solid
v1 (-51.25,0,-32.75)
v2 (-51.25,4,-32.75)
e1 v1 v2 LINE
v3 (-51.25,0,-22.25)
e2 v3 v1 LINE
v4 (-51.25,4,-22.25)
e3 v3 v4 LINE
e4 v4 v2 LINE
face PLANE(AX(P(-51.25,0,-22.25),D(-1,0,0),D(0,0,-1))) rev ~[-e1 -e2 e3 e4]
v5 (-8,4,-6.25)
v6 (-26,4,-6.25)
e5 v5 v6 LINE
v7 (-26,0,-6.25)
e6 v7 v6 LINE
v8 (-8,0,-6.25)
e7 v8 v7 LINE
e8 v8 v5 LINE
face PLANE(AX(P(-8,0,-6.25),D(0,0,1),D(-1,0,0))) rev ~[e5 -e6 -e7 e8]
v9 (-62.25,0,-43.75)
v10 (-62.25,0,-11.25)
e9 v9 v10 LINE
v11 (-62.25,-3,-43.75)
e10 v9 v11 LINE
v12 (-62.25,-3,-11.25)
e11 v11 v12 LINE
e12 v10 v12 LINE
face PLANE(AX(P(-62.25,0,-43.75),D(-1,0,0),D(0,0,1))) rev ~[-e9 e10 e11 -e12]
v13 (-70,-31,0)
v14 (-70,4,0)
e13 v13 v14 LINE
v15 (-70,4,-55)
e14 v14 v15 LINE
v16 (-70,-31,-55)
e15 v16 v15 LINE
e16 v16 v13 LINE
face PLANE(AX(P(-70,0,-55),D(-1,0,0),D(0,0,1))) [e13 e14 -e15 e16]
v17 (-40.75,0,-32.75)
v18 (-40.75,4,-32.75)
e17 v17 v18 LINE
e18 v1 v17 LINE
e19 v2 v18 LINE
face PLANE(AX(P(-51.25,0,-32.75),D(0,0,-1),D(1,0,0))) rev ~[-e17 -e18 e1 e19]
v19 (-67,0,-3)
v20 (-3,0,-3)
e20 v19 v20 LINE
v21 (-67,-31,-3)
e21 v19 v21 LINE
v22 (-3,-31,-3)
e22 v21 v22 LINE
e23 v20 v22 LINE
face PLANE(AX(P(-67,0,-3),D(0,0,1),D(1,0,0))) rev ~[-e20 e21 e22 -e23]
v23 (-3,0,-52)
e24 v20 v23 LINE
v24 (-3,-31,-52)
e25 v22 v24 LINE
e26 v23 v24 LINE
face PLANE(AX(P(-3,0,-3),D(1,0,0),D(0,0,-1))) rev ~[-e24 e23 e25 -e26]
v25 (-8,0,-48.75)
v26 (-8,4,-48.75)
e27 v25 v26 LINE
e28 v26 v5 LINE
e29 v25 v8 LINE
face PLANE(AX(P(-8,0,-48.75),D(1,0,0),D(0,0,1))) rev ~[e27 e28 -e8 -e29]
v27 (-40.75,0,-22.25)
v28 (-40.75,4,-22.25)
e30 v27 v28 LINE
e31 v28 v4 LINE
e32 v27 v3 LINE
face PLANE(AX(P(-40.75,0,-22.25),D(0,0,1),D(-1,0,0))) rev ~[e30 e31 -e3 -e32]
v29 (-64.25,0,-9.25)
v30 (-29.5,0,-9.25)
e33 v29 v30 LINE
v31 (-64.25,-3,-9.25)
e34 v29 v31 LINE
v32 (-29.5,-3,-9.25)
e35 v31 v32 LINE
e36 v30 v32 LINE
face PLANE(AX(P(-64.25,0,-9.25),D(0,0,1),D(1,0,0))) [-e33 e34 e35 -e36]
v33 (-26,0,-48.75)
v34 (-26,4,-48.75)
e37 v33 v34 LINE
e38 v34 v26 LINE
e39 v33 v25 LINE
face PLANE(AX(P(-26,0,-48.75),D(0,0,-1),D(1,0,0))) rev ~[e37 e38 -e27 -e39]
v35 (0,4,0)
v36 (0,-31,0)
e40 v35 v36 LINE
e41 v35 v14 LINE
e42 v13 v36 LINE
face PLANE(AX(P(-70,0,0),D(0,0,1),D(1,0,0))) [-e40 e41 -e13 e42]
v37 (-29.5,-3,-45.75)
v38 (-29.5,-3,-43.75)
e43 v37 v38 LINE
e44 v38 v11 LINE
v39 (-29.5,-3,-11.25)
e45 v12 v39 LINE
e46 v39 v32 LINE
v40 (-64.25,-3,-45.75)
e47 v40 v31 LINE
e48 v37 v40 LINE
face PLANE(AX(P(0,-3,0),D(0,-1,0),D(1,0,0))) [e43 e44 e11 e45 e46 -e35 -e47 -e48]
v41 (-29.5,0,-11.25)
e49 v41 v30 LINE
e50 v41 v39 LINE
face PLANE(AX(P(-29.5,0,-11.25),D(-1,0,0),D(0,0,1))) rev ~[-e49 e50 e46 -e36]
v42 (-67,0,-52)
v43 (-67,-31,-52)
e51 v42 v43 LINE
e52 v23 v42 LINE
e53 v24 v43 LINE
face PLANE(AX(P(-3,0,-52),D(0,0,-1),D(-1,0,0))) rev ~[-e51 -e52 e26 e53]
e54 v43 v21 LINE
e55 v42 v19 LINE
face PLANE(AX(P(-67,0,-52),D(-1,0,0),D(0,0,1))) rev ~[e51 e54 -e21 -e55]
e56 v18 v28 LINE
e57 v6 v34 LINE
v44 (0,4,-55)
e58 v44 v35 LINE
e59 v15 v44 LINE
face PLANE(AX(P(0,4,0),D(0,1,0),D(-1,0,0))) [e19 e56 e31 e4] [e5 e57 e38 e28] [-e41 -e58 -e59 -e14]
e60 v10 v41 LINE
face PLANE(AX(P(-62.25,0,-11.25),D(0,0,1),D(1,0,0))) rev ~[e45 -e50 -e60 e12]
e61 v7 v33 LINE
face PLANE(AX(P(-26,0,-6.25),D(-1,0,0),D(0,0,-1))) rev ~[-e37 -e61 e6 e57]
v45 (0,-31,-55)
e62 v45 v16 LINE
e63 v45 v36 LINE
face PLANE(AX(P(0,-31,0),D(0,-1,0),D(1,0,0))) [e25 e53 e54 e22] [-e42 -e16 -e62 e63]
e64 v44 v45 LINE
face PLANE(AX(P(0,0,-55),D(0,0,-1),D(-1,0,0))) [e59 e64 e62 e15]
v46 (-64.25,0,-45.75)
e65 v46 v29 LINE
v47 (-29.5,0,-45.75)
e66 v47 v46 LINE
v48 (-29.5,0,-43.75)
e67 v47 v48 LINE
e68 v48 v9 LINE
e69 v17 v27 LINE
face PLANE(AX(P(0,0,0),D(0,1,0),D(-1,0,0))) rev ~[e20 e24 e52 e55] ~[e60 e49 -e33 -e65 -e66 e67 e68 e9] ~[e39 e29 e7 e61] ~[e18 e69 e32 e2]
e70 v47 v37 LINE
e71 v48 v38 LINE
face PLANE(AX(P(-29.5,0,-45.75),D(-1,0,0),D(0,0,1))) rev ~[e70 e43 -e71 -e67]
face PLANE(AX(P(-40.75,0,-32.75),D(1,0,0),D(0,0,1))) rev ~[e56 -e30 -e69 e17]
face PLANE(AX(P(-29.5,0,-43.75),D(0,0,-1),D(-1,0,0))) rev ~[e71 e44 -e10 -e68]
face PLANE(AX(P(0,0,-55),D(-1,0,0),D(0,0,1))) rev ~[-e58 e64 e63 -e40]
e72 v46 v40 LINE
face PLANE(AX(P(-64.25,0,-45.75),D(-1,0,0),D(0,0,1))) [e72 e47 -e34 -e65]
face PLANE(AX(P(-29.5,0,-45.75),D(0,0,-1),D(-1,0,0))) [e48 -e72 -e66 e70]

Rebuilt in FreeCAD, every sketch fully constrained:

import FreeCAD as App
import Part
import Sketcher

doc = App.newDocument("Part")
params = doc.addObject("Spreadsheet::Sheet", "Params")
for row, (alias, value) in enumerate([
    ("sketch1_width", "70 mm"),
    ("sketch1_width2", "18 mm"),
    ("sketch1_height", "55 mm"),
    ("sketch1_width3", "10.5 mm"),
    ("sketch1_height2", "42.5 mm"),
    ("pad1_length", "4 mm"),
    ("sketch2_height", "2 mm"),
    ("sketch2_width", "32.75 mm"),
    ("sketch2_height2", "32.5 mm"),
    ("pad2_length", "3 mm"),
    ("sketch3_width", "70 mm"),
    ("sketch3_height", "55 mm"),
    ("pad3_length", "31 mm"),
], start=1):
    params.set(f"A{row}", alias)
    params.set(f"B{row}", "=" + value)
    params.setAlias(f"B{row}", alias)

body = doc.addObject("PartDesign::Body", "Body")

sketch1 = body.newObject("Sketcher::SketchObject", "Sketch")
sketch1.AttachmentSupport = (doc.getObject("XZ_Plane"), [""])
sketch1.MapMode = "FlatFace"
sketch1.addGeometry([
    Part.LineSegment(App.Vector(-70, 0, 0), App.Vector(0, 0, 0)),
    Part.LineSegment(App.Vector(0, 0, 0), App.Vector(0, -55, 0)),
    Part.LineSegment(App.Vector(0, -55, 0), App.Vector(-70, -55, 0)),
    Part.LineSegment(App.Vector(-70, -55, 0), App.Vector(-70, 0, 0)),
    Part.LineSegment(App.Vector(-26, -6.25, 0), App.Vector(-26, -48.75, 0)),
    Part.LineSegment(App.Vector(-26, -48.75, 0), App.Vector(-8, -48.75, 0)),
    Part.LineSegment(App.Vector(-8, -48.75, 0), App.Vector(-8, -6.25, 0)),
    Part.LineSegment(App.Vector(-8, -6.25, 0), App.Vector(-26, -6.25, 0)),
    Part.LineSegment(App.Vector(-51.25, -22.25, 0), App.Vector(-51.25, -32.75, 0)),
    Part.LineSegment(App.Vector(-51.25, -32.75, 0), App.Vector(-40.75, -32.75, 0)),
    Part.LineSegment(App.Vector(-40.75, -32.75, 0), App.Vector(-40.75, -22.25, 0)),
    Part.LineSegment(App.Vector(-40.75, -22.25, 0), App.Vector(-51.25, -22.25, 0)),
], False)
sketch1.addConstraint([
    Sketcher.Constraint("Coincident", 0, 2, 1, 1),
    Sketcher.Constraint("Coincident", 1, 2, 2, 1),
    Sketcher.Constraint("Coincident", 2, 2, 3, 1),
    Sketcher.Constraint("Coincident", 3, 2, 0, 1),
    Sketcher.Constraint("Coincident", 4, 2, 5, 1),
    Sketcher.Constraint("Coincident", 5, 2, 6, 1),
    Sketcher.Constraint("Coincident", 6, 2, 7, 1),
    Sketcher.Constraint("Coincident", 7, 2, 4, 1),
    Sketcher.Constraint("Coincident", 8, 2, 9, 1),
    Sketcher.Constraint("Coincident", 9, 2, 10, 1),
    Sketcher.Constraint("Coincident", 10, 2, 11, 1),
    Sketcher.Constraint("Coincident", 11, 2, 8, 1),
    Sketcher.Constraint("Horizontal", 0),
    Sketcher.Constraint("Vertical", 1),
    Sketcher.Constraint("Horizontal", 2),
    Sketcher.Constraint("Vertical", 3),
    Sketcher.Constraint("Vertical", 4),
    Sketcher.Constraint("Horizontal", 5),
    Sketcher.Constraint("Vertical", 6),
    Sketcher.Constraint("Horizontal", 7),
    Sketcher.Constraint("Vertical", 8),
    Sketcher.Constraint("Horizontal", 9),
    Sketcher.Constraint("Vertical", 10),
    Sketcher.Constraint("Horizontal", 11),
    Sketcher.Constraint("Coincident", 0, 2, -1, 1),
    Sketcher.Constraint("Equal", 11, 8),
    Sketcher.Constraint("DistanceX", 0, 1, 0, 2, 70.0),
    Sketcher.Constraint("DistanceX", 5, 1, 5, 2, 18.0),
    Sketcher.Constraint("DistanceY", 1, 2, 1, 1, 55.0),
    Sketcher.Constraint("DistanceX", 9, 1, 9, 2, 10.5),
    Sketcher.Constraint("DistanceY", 4, 2, 4, 1, 42.5),
    Sketcher.Constraint("DistanceX", 5, 2, -1, 1, 8.0),
    Sketcher.Constraint("DistanceY", 6, 2, -1, 1, 6.25),
    Sketcher.Constraint("DistanceY", 10, 2, -1, 1, 22.25),
    Sketcher.Constraint("DistanceX", 2, 2, 8, 2, 18.75),
])
sketch1.setExpression("Constraints[26]", "Params.sketch1_width")
sketch1.setExpression("Constraints[27]", "Params.sketch1_width2")
sketch1.setExpression("Constraints[28]", "Params.sketch1_height")
sketch1.setExpression("Constraints[29]", "Params.sketch1_width3")
sketch1.setExpression("Constraints[30]", "Params.sketch1_height2")
pad1 = body.newObject("PartDesign::Pad", "Pad")
pad1.Profile = sketch1
pad1.setExpression("Length", "Params.pad1_length")
pad1.Reversed = True

sketch2 = body.newObject("Sketcher::SketchObject", "Sketch001")
sketch2.AttachmentSupport = (doc.getObject("XZ_Plane"), [""])
sketch2.MapMode = "FlatFace"
sketch2.addGeometry([
    Part.LineSegment(App.Vector(-29.5, -45.75, 0), App.Vector(-29.5, -43.75, 0)),
    Part.LineSegment(App.Vector(-29.5, -43.75, 0), App.Vector(-62.25, -43.75, 0)),
    Part.LineSegment(App.Vector(-62.25, -43.75, 0), App.Vector(-62.25, -11.25, 0)),
    Part.LineSegment(App.Vector(-62.25, -11.25, 0), App.Vector(-29.5, -11.25, 0)),
    Part.LineSegment(App.Vector(-29.5, -11.25, 0), App.Vector(-29.5, -9.25, 0)),
    Part.LineSegment(App.Vector(-29.5, -9.25, 0), App.Vector(-64.25, -9.25, 0)),
    Part.LineSegment(App.Vector(-64.25, -9.25, 0), App.Vector(-64.25, -45.75, 0)),
    Part.LineSegment(App.Vector(-64.25, -45.75, 0), App.Vector(-29.5, -45.75, 0)),
], False)
sketch2.addConstraint([
    Sketcher.Constraint("Coincident", 0, 2, 1, 1),
    Sketcher.Constraint("Coincident", 1, 2, 2, 1),
    Sketcher.Constraint("Coincident", 2, 2, 3, 1),
    Sketcher.Constraint("Coincident", 3, 2, 4, 1),
    Sketcher.Constraint("Coincident", 4, 2, 5, 1),
    Sketcher.Constraint("Coincident", 5, 2, 6, 1),
    Sketcher.Constraint("Coincident", 6, 2, 7, 1),
    Sketcher.Constraint("Coincident", 7, 2, 0, 1),
    Sketcher.Constraint("Vertical", 0),
    Sketcher.Constraint("Horizontal", 1),
    Sketcher.Constraint("Vertical", 2),
    Sketcher.Constraint("Horizontal", 3),
    Sketcher.Constraint("Vertical", 4),
    Sketcher.Constraint("Horizontal", 5),
    Sketcher.Constraint("Vertical", 6),
    Sketcher.Constraint("Horizontal", 7),
    Sketcher.Constraint("Vertical", 0, 2, 3, 2),
    Sketcher.Constraint("Equal", 0, 4),
    Sketcher.Constraint("DistanceY", 0, 1, 0, 2, 2.0),
    Sketcher.Constraint("DistanceX", 5, 2, 2, 2, 2.0),
    Sketcher.Constraint("DistanceX", 1, 2, 1, 1, 32.75),
    Sketcher.Constraint("DistanceY", 2, 1, 2, 2, 32.5),
    Sketcher.Constraint("DistanceX", 0, 2, -1, 1, 29.5),
    Sketcher.Constraint("DistanceY", 0, 2, -1, 1, 43.75),
])
sketch2.setExpression("Constraints[18]", "Params.sketch2_height")
sketch2.setExpression("Constraints[20]", "Params.sketch2_width")
sketch2.setExpression("Constraints[21]", "Params.sketch2_height2")
pad2 = body.newObject("PartDesign::Pad", "Pad001")
pad2.Profile = sketch2
pad2.setExpression("Length", "Params.pad2_length")

sketch3 = body.newObject("Sketcher::SketchObject", "Sketch002")
sketch3.AttachmentSupport = (doc.getObject("XZ_Plane"), [""])
sketch3.MapMode = "FlatFace"
sketch3.addGeometry([
    Part.LineSegment(App.Vector(-70, -55, 0), App.Vector(0, -55, 0)),
    Part.LineSegment(App.Vector(0, -55, 0), App.Vector(0, 0, 0)),
    Part.LineSegment(App.Vector(0, 0, 0), App.Vector(-70, 0, 0)),
    Part.LineSegment(App.Vector(-70, 0, 0), App.Vector(-70, -55, 0)),
    Part.LineSegment(App.Vector(-3, -3, 0), App.Vector(-3, -52, 0)),
    Part.LineSegment(App.Vector(-3, -52, 0), App.Vector(-67, -52, 0)),
    Part.LineSegment(App.Vector(-67, -52, 0), App.Vector(-67, -3, 0)),
    Part.LineSegment(App.Vector(-67, -3, 0), App.Vector(-3, -3, 0)),
], False)
sketch3.addConstraint([
    Sketcher.Constraint("Coincident", 0, 2, 1, 1),
    Sketcher.Constraint("Coincident", 1, 2, 2, 1),
    Sketcher.Constraint("Coincident", 2, 2, 3, 1),
    Sketcher.Constraint("Coincident", 3, 2, 0, 1),
    Sketcher.Constraint("Coincident", 4, 2, 5, 1),
    Sketcher.Constraint("Coincident", 5, 2, 6, 1),
    Sketcher.Constraint("Coincident", 6, 2, 7, 1),
    Sketcher.Constraint("Coincident", 7, 2, 4, 1),
    Sketcher.Constraint("Horizontal", 0),
    Sketcher.Constraint("Vertical", 1),
    Sketcher.Constraint("Horizontal", 2),
    Sketcher.Constraint("Vertical", 3),
    Sketcher.Constraint("Vertical", 4),
    Sketcher.Constraint("Horizontal", 5),
    Sketcher.Constraint("Vertical", 6),
    Sketcher.Constraint("Horizontal", 7),
    Sketcher.Constraint("Coincident", 1, 2, -1, 1),
    Sketcher.Constraint("DistanceX", 4, 2, -1, 1, 3.0),
    Sketcher.Constraint("DistanceY", 6, 2, -1, 1, 3.0),
    Sketcher.Constraint("DistanceY", 0, 2, 4, 2, 3.0),
    Sketcher.Constraint("DistanceX", 3, 2, 5, 2, 3.0),
    Sketcher.Constraint("DistanceX", 0, 1, 0, 2, 70.0),
    Sketcher.Constraint("DistanceY", 1, 1, 1, 2, 55.0),
])
sketch3.setExpression("Constraints[21]", "Params.sketch3_width")
sketch3.setExpression("Constraints[22]", "Params.sketch3_height")
pad3 = body.newObject("PartDesign::Pad", "Pad002")
pad3.Profile = sketch3
pad3.setExpression("Length", "Params.pad3_length")

doc.recompute()
